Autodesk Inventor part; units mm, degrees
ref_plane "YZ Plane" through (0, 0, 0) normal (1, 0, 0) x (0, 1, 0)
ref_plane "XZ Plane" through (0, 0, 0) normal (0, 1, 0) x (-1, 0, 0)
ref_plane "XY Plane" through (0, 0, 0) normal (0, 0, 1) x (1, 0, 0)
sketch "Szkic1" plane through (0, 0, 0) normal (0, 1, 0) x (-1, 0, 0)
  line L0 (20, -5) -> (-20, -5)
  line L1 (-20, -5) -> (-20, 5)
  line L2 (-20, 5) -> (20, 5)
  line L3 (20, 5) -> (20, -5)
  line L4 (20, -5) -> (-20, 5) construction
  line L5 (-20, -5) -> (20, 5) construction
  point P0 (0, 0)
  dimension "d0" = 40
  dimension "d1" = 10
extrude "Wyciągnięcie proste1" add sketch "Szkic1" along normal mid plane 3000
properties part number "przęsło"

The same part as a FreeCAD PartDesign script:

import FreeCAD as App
import Part
import Sketcher
from FreeCAD import Vector
Q = App.Units.Quantity


def add_polygon(sketch, points):
    """Adds a closed chain of lines whose ends are joined by coincident constraints."""
    first, n = sketch.GeometryCount, len(points)
    for a, b in zip(points, points[1:] + points[:1]):
        sketch.addGeometry(Part.LineSegment(App.Vector(*a, 0), App.Vector(*b, 0)), False)
    for i in range(n):
        sketch.addConstraint(Sketcher.Constraint("Coincident", first + i, 2, first + (i + 1) % n, 1))

doc = App.newDocument("Part")
body = doc.addObject("PartDesign::Body", "Body")

sketch1 = body.newObject("Sketcher::SketchObject", "Sketch")
sketch1.AttachmentSupport = (doc.getObject("XZ_Plane"), [""])
sketch1.MapMode = "FlatFace"
add_polygon(sketch1, [(20, -5), (-20, -5), (-20, 5), (20, 5)])
sketch1.addConstraint(Sketcher.Constraint("Horizontal", 0))
sketch1.addConstraint(Sketcher.Constraint("Vertical", 1))
sketch1.addConstraint(Sketcher.Constraint("Horizontal", 2))
sketch1.addConstraint(Sketcher.Constraint("Vertical", 3))
sketch1.addConstraint(Sketcher.Constraint("Symmetric", 0, 2, 2, 2, -1, 1))
sketch1.addConstraint(Sketcher.Constraint("DistanceX", 0, 2, 0, 1, Q("40 mm")))
sketch1.addConstraint(Sketcher.Constraint("DistanceY", 1, 1, 1, 2, Q("10 mm")))
pad1 = body.newObject("PartDesign::Pad", "Pad")
pad1.Profile = sketch1
pad1.Length = 3000
pad1.Midplane = True

doc.recompute()
